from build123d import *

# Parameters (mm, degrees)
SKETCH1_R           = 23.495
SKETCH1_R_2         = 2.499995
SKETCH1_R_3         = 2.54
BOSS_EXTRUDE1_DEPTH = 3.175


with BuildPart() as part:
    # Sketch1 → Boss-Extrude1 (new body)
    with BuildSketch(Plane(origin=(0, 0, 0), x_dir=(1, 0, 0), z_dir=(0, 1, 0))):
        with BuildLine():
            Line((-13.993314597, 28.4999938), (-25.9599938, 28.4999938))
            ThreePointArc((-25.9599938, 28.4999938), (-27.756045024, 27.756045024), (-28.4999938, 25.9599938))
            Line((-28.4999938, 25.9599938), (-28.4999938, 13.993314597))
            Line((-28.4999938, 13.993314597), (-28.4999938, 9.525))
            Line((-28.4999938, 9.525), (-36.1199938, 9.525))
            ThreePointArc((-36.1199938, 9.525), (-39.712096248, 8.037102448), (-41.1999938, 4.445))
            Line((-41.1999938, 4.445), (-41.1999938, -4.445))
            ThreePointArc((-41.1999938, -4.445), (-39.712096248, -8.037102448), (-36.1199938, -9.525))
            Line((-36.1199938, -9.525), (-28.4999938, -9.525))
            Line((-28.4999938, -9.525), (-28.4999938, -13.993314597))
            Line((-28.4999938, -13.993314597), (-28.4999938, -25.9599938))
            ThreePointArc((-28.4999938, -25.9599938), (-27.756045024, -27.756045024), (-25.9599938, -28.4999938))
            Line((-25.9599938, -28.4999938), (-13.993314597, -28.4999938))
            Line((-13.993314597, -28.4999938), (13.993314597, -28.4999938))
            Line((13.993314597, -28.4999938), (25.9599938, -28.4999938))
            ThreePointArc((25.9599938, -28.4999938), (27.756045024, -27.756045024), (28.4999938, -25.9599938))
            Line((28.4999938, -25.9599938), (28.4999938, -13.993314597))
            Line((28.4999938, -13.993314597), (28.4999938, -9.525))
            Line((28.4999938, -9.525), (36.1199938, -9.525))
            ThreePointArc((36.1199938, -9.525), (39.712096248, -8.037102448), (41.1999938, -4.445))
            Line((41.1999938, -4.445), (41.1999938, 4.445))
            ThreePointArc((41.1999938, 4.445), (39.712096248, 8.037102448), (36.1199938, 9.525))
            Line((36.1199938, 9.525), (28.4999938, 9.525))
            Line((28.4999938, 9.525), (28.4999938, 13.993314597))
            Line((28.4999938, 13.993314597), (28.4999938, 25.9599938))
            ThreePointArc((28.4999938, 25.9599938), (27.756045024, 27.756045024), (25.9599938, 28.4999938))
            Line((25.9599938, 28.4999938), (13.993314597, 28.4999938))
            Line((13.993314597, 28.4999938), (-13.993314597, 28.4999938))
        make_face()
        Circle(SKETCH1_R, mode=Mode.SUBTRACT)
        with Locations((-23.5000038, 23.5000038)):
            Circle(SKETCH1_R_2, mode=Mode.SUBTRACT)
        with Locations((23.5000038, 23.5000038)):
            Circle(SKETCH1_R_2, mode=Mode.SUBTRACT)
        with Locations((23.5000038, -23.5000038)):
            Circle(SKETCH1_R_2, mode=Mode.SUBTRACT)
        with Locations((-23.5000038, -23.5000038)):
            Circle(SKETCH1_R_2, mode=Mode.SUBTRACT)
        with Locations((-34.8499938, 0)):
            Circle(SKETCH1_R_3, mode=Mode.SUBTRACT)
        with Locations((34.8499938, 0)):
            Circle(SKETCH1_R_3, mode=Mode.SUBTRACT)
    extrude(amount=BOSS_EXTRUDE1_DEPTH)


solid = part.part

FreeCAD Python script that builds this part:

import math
import FreeCAD as App
import Part
import Sketcher
from FreeCAD import Vector
Q = App.Units.Quantity

doc = App.newDocument("Part")
body = doc.addObject("PartDesign::Body", "Body")

sketch1 = body.newObject("Sketcher::SketchObject", "Sketch")
sketch1.AttachmentSupport = (doc.getObject("XZ_Plane"), [""])
sketch1.MapMode = "FlatFace"
sketch1.addGeometry([
    Part.ArcOfCircle(Part.Circle(Vector(-25.959994, -25.959994, 0), Vector(0, 0, 1), 2.54), math.radians(-180), math.radians(-90)),
    Part.LineSegment(Vector(-28.499994, -25.959994, 0), Vector(-28.499994, -9.525, 0)),
    Part.LineSegment(Vector(-28.499994, -9.525, 0), Vector(-36.119994, -9.525, 0)),
    Part.ArcOfCircle(Part.Circle(Vector(-36.119994, -4.445, 0), Vector(0, 0, 1), 5.08), math.radians(-180), math.radians(-90)),
    Part.LineSegment(Vector(-41.199994, -4.445, 0), Vector(-41.199994, 4.445, 0)),
    Part.ArcOfCircle(Part.Circle(Vector(-36.119994, 4.445, 0), Vector(0, 0, 1), 5.08), math.radians(90), math.radians(180)),
    Part.LineSegment(Vector(-36.119994, 9.525, 0), Vector(-28.499994, 9.525, 0)),
    Part.LineSegment(Vector(-28.499994, 9.525, 0), Vector(-28.499994, 25.959994, 0)),
    Part.ArcOfCircle(Part.Circle(Vector(-25.959994, 25.959994, 0), Vector(0, 0, 1), 2.54), math.radians(90), math.radians(180)),
    Part.LineSegment(Vector(-25.959994, 28.499994, 0), Vector(25.959994, 28.499994, 0)),
    Part.ArcOfCircle(Part.Circle(Vector(25.959994, 25.959994, 0), Vector(0, 0, 1), 2.54), math.radians(0), math.radians(90)),
    Part.LineSegment(Vector(28.499994, 25.959994, 0), Vector(28.499994, 9.525, 0)),
    Part.LineSegment(Vector(28.499994, 9.525, 0), Vector(36.119994, 9.525, 0)),
    Part.ArcOfCircle(Part.Circle(Vector(36.119994, 4.445, 0), Vector(0, 0, 1), 5.08), math.radians(0), math.radians(90)),
    Part.LineSegment(Vector(41.199994, 4.445, 0), Vector(41.199994, -4.445, 0)),
    Part.ArcOfCircle(Part.Circle(Vector(36.119994, -4.445, 0), Vector(0, 0, 1), 5.08), math.radians(-90), math.radians(0)),
    Part.LineSegment(Vector(36.119994, -9.525, 0), Vector(28.499994, -9.525, 0)),
    Part.LineSegment(Vector(28.499994, -9.525, 0), Vector(28.499994, -25.959994, 0)),
    Part.ArcOfCircle(Part.Circle(Vector(25.959994, -25.959994, 0), Vector(0, 0, 1), 2.54), math.radians(-90), math.radians(0)),
    Part.LineSegment(Vector(25.959994, -28.499994, 0), Vector(-25.959994, -28.499994, 0)),
    Part.Circle(Vector(-23.500004, 23.500004, 0), Vector(0, 0, 1), 2.499995),
    Part.Circle(Vector(23.500004, 23.500004, 0), Vector(0, 0, 1), 2.499995),
    Part.Circle(Vector(-34.849994, 0, 0), Vector(0, 0, 1), 2.54),
    Part.Circle(Vector(-23.500004, -23.500004, 0), Vector(0, 0, 1), 2.499995),
    Part.Circle(Vector(0, 0, 0), Vector(0, 0, 1), 23.495),
    Part.Circle(Vector(34.849994, 0, 0), Vector(0, 0, 1), 2.54),
    Part.Circle(Vector(23.500004, -23.500004, 0), Vector(0, 0, 1), 2.499995),
], False)
sketch1.addConstraint([
    Sketcher.Constraint("Tangent", 0, 1, 1, 1),
    Sketcher.Constraint("Coincident", 1, 2, 2, 1),
    Sketcher.Constraint("Tangent", 2, 2, 3, 2),
    Sketcher.Constraint("Tangent", 3, 1, 4, 1),
    Sketcher.Constraint("Tangent", 4, 2, 5, 2),
    Sketcher.Constraint("Tangent", 5, 1, 6, 1),
    Sketcher.Constraint("Coincident", 6, 2, 7, 1),
    Sketcher.Constraint("Tangent", 7, 2, 8, 2),
    Sketcher.Constraint("Tangent", 8, 1, 9, 1),
    Sketcher.Constraint("Tangent", 9, 2, 10, 2),
    Sketcher.Constraint("Tangent", 10, 1, 11, 1),
    Sketcher.Constraint("Coincident", 11, 2, 12, 1),
    Sketcher.Constraint("Tangent", 12, 2, 13, 2),
    Sketcher.Constraint("Tangent", 13, 1, 14, 1),
    Sketcher.Constraint("Tangent", 14, 2, 15, 2),
    Sketcher.Constraint("Tangent", 15, 1, 16, 1),
    Sketcher.Constraint("Coincident", 16, 2, 17, 1),
    Sketcher.Constraint("Tangent", 17, 2, 18, 2),
    Sketcher.Constraint("Tangent", 18, 1, 19, 1),
    Sketcher.Constraint("Tangent", 19, 2, 0, 2),
    Sketcher.Constraint("Vertical", 1),
    Sketcher.Constraint("Horizontal", 2),
    Sketcher.Constraint("Vertical", 4),
    Sketcher.Constraint("Horizontal", 6),
    Sketcher.Constraint("Vertical", 7),
    Sketcher.Constraint("Horizontal", 9),
    Sketcher.Constraint("Vertical", 11),
    Sketcher.Constraint("Horizontal", 12),
    Sketcher.Constraint("Vertical", 14),
    Sketcher.Constraint("Horizontal", 16),
    Sketcher.Constraint("Vertical", 17),
    Sketcher.Constraint("Horizontal", 19),
    Sketcher.Constraint("Coincident", 24, 3, -1, 1),
    Sketcher.Constraint("Equal", 3, 5),
    Sketcher.Constraint("Equal", 0, 8),
    Sketcher.Constraint("Equal", 8, 10),
    Sketcher.Constraint("Equal", 5, 13),
    Sketcher.Constraint("Equal", 13, 15),
    Sketcher.Constraint("Equal", 10, 18),
    Sketcher.Constraint("Equal", 20, 21),
    Sketcher.Constraint("Equal", 18, 22),
    Sketcher.Constraint("Equal", 21, 23),
    Sketcher.Constraint("Equal", 22, 25),
    Sketcher.Constraint("Equal", 23, 26),
    Sketcher.Constraint("Symmetric", 0, 3, 10, 3, -1, 1),
    Sketcher.Constraint("Symmetric", 3, 3, 13, 3, -1, 1),
    Sketcher.Constraint("Symmetric", 21, 3, 23, 3, -1, 1),
    Sketcher.Constraint("Symmetric", 22, 3, 25, 3, -1, 1),
    Sketcher.Constraint("Symmetric", 20, 3, 26, 3, -1, 1),
    Sketcher.Constraint("Symmetric", 6, 2, 16, 2, -1, 1),
    Sketcher.Constraint("Symmetric", 20, 3, 21, 3, -2),
    Sketcher.Constraint("Symmetric", 6, 2, 11, 2, -2),
    Sketcher.Constraint("PointOnObject", 22, 3, -1),
    Sketcher.Constraint("Diameter", 22, Q("0.2 in")),
    Sketcher.Constraint("Radius", 3, Q("0.2 in")),
    Sketcher.Constraint("Diameter", 24, Q("1.85 in")),
    Sketcher.Constraint("DistanceX", 2, 2, 2, 1, Q("0.3 in")),
    Sketcher.Constraint("DistanceY", 4, 1, 4, 2, Q("0.35 in")),
    Sketcher.Constraint("DistanceX", 3, 3, 22, 3, Q("0.05 in")),
    Sketcher.Constraint("Diameter", 20, 4.99999),
    Sketcher.Constraint("DistanceX", 9, 1, 9, 2, 51.919988),
    Sketcher.Constraint("DistanceY", 1, 1, 1, 2, 16.434994),
    Sketcher.Constraint("DistanceX", 8, 3, 20, 3, 2.45999),
    Sketcher.Constraint("DistanceY", 20, 3, 8, 3, 2.45999),
])
pad1 = body.newObject("PartDesign::Pad", "Pad")
pad1.Profile = sketch1
pad1.Length = Q("0.125 in")
pad1.Reversed = True

doc.recompute()
